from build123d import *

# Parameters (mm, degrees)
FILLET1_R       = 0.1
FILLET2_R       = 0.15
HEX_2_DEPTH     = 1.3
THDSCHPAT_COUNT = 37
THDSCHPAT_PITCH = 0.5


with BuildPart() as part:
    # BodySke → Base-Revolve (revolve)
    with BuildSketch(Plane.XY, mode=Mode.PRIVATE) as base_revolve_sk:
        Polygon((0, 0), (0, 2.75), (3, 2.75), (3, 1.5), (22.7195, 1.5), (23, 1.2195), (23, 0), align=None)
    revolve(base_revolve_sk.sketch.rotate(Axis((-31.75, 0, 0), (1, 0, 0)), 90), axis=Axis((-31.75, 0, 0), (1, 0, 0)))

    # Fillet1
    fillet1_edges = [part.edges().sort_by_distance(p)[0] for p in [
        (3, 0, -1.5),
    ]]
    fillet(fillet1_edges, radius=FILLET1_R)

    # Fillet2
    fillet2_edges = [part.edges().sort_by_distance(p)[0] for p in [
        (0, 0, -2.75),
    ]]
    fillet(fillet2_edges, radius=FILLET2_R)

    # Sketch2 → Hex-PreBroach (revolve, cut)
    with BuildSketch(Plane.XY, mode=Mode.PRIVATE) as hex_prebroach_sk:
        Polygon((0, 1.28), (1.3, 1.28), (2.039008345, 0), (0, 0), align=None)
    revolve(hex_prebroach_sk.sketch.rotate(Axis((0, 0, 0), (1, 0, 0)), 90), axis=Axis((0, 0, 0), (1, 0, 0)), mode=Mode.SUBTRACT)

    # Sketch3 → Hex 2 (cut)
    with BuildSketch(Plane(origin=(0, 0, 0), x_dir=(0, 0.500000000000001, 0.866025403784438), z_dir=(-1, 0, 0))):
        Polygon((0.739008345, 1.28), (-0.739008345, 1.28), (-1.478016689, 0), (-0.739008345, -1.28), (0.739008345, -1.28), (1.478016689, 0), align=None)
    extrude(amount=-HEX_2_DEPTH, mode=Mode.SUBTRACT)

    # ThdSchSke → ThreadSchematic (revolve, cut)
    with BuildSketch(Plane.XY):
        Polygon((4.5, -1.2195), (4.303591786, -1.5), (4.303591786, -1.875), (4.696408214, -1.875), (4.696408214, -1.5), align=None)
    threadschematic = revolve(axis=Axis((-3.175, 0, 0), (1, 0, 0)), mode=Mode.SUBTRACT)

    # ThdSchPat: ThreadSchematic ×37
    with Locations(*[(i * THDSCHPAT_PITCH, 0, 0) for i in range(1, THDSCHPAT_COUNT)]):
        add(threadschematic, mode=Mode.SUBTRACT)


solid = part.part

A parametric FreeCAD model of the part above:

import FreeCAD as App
import Part
import Sketcher

V = App.Vector
Q = App.Units.Quantity


def edges_at(feature, points):
    """Names of the edges that pass closest to the given points."""
    edges = feature.Shape.Edges
    near = lambda p: min(range(len(edges)), key=lambda i: edges[i].distToShape(Part.Vertex(*p))[0])
    return sorted({f"Edge{near(p) + 1}" for p in points})

doc = App.newDocument("Part")
body = doc.addObject("PartDesign::Body", "Body")

# Sketch on XY plane
sketch1 = doc.addObject("Sketcher::SketchObject", "Sketch")
body.addObject(sketch1)
sketch1.AttachmentSupport = (doc.XY_Plane, [""])
sketch1.MapMode = "FlatFace"
sketch1.addGeometry(Part.LineSegment(V(0, 2.75, 0), V(0, 0, 0)), False)
sketch1.addGeometry(Part.LineSegment(V(0, 0, 0), V(23, 0, 0)), False)
sketch1.addGeometry(Part.LineSegment(V(23, 0, 0), V(23, 1.2195, 0)), False)
sketch1.addGeometry(Part.LineSegment(V(23, 1.2195, 0), V(22.7195, 1.5, 0)), False)
sketch1.addGeometry(Part.LineSegment(V(22.7195, 1.5, 0), V(3, 1.5, 0)), False)
sketch1.addGeometry(Part.LineSegment(V(3, 1.5, 0), V(3, 2.75, 0)), False)
sketch1.addGeometry(Part.LineSegment(V(3, 2.75, 0), V(0, 2.75, 0)), False)
sketch1.addConstraint(Sketcher.Constraint("Coincident", 0, 2, 1, 1))
sketch1.addConstraint(Sketcher.Constraint("Coincident", 1, 2, 2, 1))
sketch1.addConstraint(Sketcher.Constraint("Coincident", 2, 2, 3, 1))
sketch1.addConstraint(Sketcher.Constraint("Coincident", 3, 2, 4, 1))
sketch1.addConstraint(Sketcher.Constraint("Coincident", 4, 2, 5, 1))
sketch1.addConstraint(Sketcher.Constraint("Coincident", 5, 2, 6, 1))
sketch1.addConstraint(Sketcher.Constraint("Coincident", 6, 2, 0, 1))
sketch1.addConstraint(Sketcher.Constraint("Vertical", 0))
sketch1.addConstraint(Sketcher.Constraint("Horizontal", 1))
sketch1.addConstraint(Sketcher.Constraint("Vertical", 2))
sketch1.addConstraint(Sketcher.Constraint("Horizontal", 4))
sketch1.addConstraint(Sketcher.Constraint("Vertical", 5))
sketch1.addConstraint(Sketcher.Constraint("Horizontal", 6))
sketch1.addConstraint(Sketcher.Constraint("Coincident", 0, 2, -1, 1))
sketch1.addConstraint(Sketcher.Constraint("DistanceX", 1, 1, 1, 2, Q("23 mm")))
sketch1.addConstraint(Sketcher.Constraint("DistanceX", 6, 2, 6, 1, Q("3 mm")))
sketch1.addConstraint(Sketcher.Constraint("Angle", 3, Q("135 deg")))
sketch1.addConstraint(Sketcher.Constraint("DistanceY", 0, 2, 0, 1, Q("2.75 mm")))
sketch1.addConstraint(Sketcher.Constraint("DistanceY", 5, 1, 5, 2, Q("1.25 mm")))
sketch1.addConstraint(Sketcher.Constraint("DistanceX", 4, 2, 4, 1, Q("19.7195 mm")))
revolution = doc.addObject("PartDesign::Revolution", "Revolution")
body.addObject(revolution)
revolution.Profile = sketch1
revolution.ReferenceAxis = (sketch1, ["H_Axis"])
revolution.Angle = 360
doc.recompute()

fillet = doc.addObject("PartDesign::Fillet", "Fillet")
body.addObject(fillet)
fillet.Base = (revolution, edges_at(revolution, [(3, 0, -1.5)]))
fillet.Radius = 0.1
doc.recompute()

fillet2 = doc.addObject("PartDesign::Fillet", "Fillet001")
body.addObject(fillet2)
fillet2.Base = (fillet, edges_at(fillet, [(0, 0, -2.75)]))
fillet2.Radius = 0.15

# Sketch on XY plane
sketch2 = doc.addObject("Sketcher::SketchObject", "Sketch001")
body.addObject(sketch2)
sketch2.AttachmentSupport = (doc.XY_Plane, [""])
sketch2.MapMode = "FlatFace"
sketch2.addGeometry(Part.LineSegment(V(1.3, 1.28, 0), V(0, 1.28, 0)), False)
sketch2.addGeometry(Part.LineSegment(V(0, 1.28, 0), V(0, 0, 0)), False)
sketch2.addGeometry(Part.LineSegment(V(0, 0, 0), V(2.039008, 0, 0)), False)
sketch2.addGeometry(Part.LineSegment(V(2.039008, 0, 0), V(1.3, 1.28, 0)), False)
sketch2.addConstraint(Sketcher.Constraint("Coincident", 0, 2, 1, 1))
sketch2.addConstraint(Sketcher.Constraint("Coincident", 1, 2, 2, 1))
sketch2.addConstraint(Sketcher.Constraint("Coincident", 2, 2, 3, 1))
sketch2.addConstraint(Sketcher.Constraint("Coincident", 3, 2, 0, 1))
sketch2.addConstraint(Sketcher.Constraint("Horizontal", 0))
sketch2.addConstraint(Sketcher.Constraint("Vertical", 1))
sketch2.addConstraint(Sketcher.Constraint("Horizontal", 2))
sketch2.addConstraint(Sketcher.Constraint("Coincident", 1, 2, -1, 1))
sketch2.addConstraint(Sketcher.Constraint("Angle", 3, Q("120 deg")))
sketch2.addConstraint(Sketcher.Constraint("DistanceX", 0, 2, 0, 1, Q("1.3 mm")))
sketch2.addConstraint(Sketcher.Constraint("DistanceY", 1, 2, 1, 1, Q("1.28 mm")))
groove = doc.addObject("PartDesign::Groove", "Groove")
body.addObject(groove)
groove.Profile = sketch2
groove.ReferenceAxis = (sketch2, ["H_Axis"])
groove.Angle = 360

# Sketch on YZ plane
sketch3 = doc.addObject("Sketcher::SketchObject", "Sketch002")
body.addObject(sketch3)
sketch3.AttachmentSupport = (doc.YZ_Plane, [""])
sketch3.MapMode = "FlatFace"
sketch3.addGeometry(Part.LineSegment(V(1.478017, 0, 0), V(0.739008, -1.28, 0)), False)
sketch3.addGeometry(Part.LineSegment(V(0.739008, -1.28, 0), V(-0.739008, -1.28, 0)), False)
sketch3.addGeometry(Part.LineSegment(V(-0.739008, -1.28, 0), V(-1.478017, 0, 0)), False)
sketch3.addGeometry(Part.LineSegment(V(-1.478017, 0, 0), V(-0.739008, 1.28, 0)), False)
sketch3.addGeometry(Part.LineSegment(V(-0.739008, 1.28, 0), V(0.739008, 1.28, 0)), False)
sketch3.addGeometry(Part.LineSegment(V(0.739008, 1.28, 0), V(1.478017, 0, 0)), False)
sketch3.addConstraint(Sketcher.Constraint("Coincident", 0, 2, 1, 1))
sketch3.addConstraint(Sketcher.Constraint("Coincident", 1, 2, 2, 1))
sketch3.addConstraint(Sketcher.Constraint("Coincident", 2, 2, 3, 1))
sketch3.addConstraint(Sketcher.Constraint("Coincident", 3, 2, 4, 1))
sketch3.addConstraint(Sketcher.Constraint("Coincident", 4, 2, 5, 1))
sketch3.addConstraint(Sketcher.Constraint("Coincident", 5, 2, 0, 1))
sketch3.addConstraint(Sketcher.Constraint("Horizontal", 1))
sketch3.addConstraint(Sketcher.Constraint("Horizontal", 4))
sketch3.addConstraint(Sketcher.Constraint("Symmetric", 0, 2, 3, 2, -1, 1))
sketch3.addConstraint(Sketcher.Constraint("Symmetric", 2, 2, 5, 2, -1, 1))
sketch3.addConstraint(Sketcher.Constraint("PointOnObject", 2, 2, -1))
sketch3.addConstraint(Sketcher.Constraint("Parallel", 2, 5))
sketch3.addConstraint(Sketcher.Constraint("Vertical", 1, 2, 3, 2))
sketch3.addConstraint(Sketcher.Constraint("Angle", 0, Q("-120 deg")))
sketch3.addConstraint(Sketcher.Constraint("DistanceY", 0, 2, -1, 1, Q("1.28 mm")))
sketch3.addConstraint(Sketcher.Constraint("DistanceX", 1, 2, 1, 1, Q("1.478017 mm")))
pocket1 = doc.addObject("PartDesign::Pocket", "Pocket")
body.addObject(pocket1)
pocket1.Profile = sketch3
pocket1.Length = 1.3
pocket1.Reversed = True

# Sketch on XY plane
sketch4 = doc.addObject("Sketcher::SketchObject", "Sketch003")
body.addObject(sketch4)
sketch4.AttachmentSupport = (doc.XY_Plane, [""])
sketch4.MapMode = "FlatFace"
sketch4.addGeometry(Part.LineSegment(V(4.5, -1.2195, 0), V(4.303592, -1.5, 0)), False)
sketch4.addGeometry(Part.LineSegment(V(4.303592, -1.5, 0), V(4.303592, -1.875, 0)), False)
sketch4.addGeometry(Part.LineSegment(V(4.303592, -1.875, 0), V(4.696408, -1.875, 0)), False)
sketch4.addGeometry(Part.LineSegment(V(4.696408, -1.875, 0), V(4.696408, -1.5, 0)), False)
sketch4.addGeometry(Part.LineSegment(V(4.696408, -1.5, 0), V(4.5, -1.2195, 0)), False)
sketch4.addConstraint(Sketcher.Constraint("Coincident", 0, 2, 1, 1))
sketch4.addConstraint(Sketcher.Constraint("Coincident", 1, 2, 2, 1))
sketch4.addConstraint(Sketcher.Constraint("Coincident", 2, 2, 3, 1))
sketch4.addConstraint(Sketcher.Constraint("Coincident", 3, 2, 4, 1))
sketch4.addConstraint(Sketcher.Constraint("Coincident", 4, 2, 0, 1))
sketch4.addConstraint(Sketcher.Constraint("Vertical", 1))
sketch4.addConstraint(Sketcher.Constraint("Horizontal", 2))
sketch4.addConstraint(Sketcher.Constraint("Vertical", 3))
sketch4.addConstraint(Sketcher.Constraint("Horizontal", 0, 2, 3, 2))
sketch4.addConstraint(Sketcher.Constraint("Equal", 0, 4))
sketch4.addConstraint(Sketcher.Constraint("Angle", 0, Q("-125 deg")))
sketch4.addConstraint(Sketcher.Constraint("DistanceY", 0, 2, -1, 1, Q("1.5 mm")))
sketch4.addConstraint(Sketcher.Constraint("DistanceX", -1, 1, 4, 2, Q("4.5 mm")))
sketch4.addConstraint(Sketcher.Constraint("DistanceY", 1, 2, 1, 1, Q("0.375 mm")))
sketch4.addConstraint(Sketcher.Constraint("DistanceY", 4, 2, -1, 1, Q("1.2195 mm")))
groove2 = doc.addObject("PartDesign::Groove", "Groove001")
body.addObject(groove2)
groove2.Profile = sketch4
groove2.ReferenceAxis = (sketch4, ["H_Axis"])
groove2.Angle = 360
doc.recompute()

linearpattern = doc.addObject("PartDesign::LinearPattern", "LinearPattern")
body.addObject(linearpattern)
linearpattern.Originals = [groove2]
linearpattern.Direction = (doc.X_Axis, [""])
linearpattern.Mode = "offset"
linearpattern.Offset = 0.5
linearpattern.Occurrences = 37
body.Tip = linearpattern

doc.recompute()
